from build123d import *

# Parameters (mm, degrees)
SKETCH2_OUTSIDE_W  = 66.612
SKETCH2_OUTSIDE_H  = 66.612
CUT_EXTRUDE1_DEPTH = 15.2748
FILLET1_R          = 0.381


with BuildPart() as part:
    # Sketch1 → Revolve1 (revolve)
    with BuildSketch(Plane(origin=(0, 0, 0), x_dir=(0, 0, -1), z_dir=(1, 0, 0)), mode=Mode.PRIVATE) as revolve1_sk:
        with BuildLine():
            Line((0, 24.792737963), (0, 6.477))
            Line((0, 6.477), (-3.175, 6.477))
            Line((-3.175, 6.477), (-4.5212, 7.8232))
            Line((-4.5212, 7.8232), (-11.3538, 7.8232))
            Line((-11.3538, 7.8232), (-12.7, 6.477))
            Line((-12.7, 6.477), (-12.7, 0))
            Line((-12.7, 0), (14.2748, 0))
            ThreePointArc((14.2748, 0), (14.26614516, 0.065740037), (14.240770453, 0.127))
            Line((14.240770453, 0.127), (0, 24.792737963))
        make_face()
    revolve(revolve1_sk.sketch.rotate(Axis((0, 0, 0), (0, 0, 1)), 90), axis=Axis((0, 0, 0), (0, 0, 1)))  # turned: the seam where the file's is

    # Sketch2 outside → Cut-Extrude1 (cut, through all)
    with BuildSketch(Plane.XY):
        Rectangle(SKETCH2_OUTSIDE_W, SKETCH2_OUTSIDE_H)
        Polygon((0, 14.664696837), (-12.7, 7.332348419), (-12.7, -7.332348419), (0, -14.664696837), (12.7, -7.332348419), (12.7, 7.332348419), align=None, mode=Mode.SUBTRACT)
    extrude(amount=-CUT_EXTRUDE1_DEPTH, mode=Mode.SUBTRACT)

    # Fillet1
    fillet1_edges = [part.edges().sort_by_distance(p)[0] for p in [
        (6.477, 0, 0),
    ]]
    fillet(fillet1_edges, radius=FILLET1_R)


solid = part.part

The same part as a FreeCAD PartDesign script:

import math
import FreeCAD as App
import Part
import Sketcher
from FreeCAD import Vector
Q = App.Units.Quantity


def edges_at(feature, points):
    """Names of the edges that pass closest to the given points."""
    edges = feature.Shape.Edges
    near = lambda p: min(range(len(edges)), key=lambda i: edges[i].distToShape(Part.Vertex(*p))[0])
    return sorted({f"Edge{near(p) + 1}" for p in points})


def add_polygon(sketch, points):
    """Adds a closed chain of lines whose ends are joined by coincident constraints."""
    first, n = sketch.GeometryCount, len(points)
    for a, b in zip(points, points[1:] + points[:1]):
        sketch.addGeometry(Part.LineSegment(App.Vector(*a, 0), App.Vector(*b, 0)), False)
    for i in range(n):
        sketch.addConstraint(Sketcher.Constraint("Coincident", first + i, 2, first + (i + 1) % n, 1))

doc = App.newDocument("Part")
params = doc.addObject("Spreadsheet::Sheet", "Params")
for row, (alias, value) in enumerate([
    ("sketch1_radius", "0.01 in"),
    ("sketch1_width", "0.255 in"),
    ("sketch1_height", "0.125 in"),
    ("sketch1_height2", "0.269 in"),
    ("sketch1_height3", "1.062 in"),
    ("revolution_angle", "360 deg"),
    ("fillet_radius", "0.015 in"),
], start=1):
    params.set(f"A{row}", alias)
    params.set(f"B{row}", "=" + value)
    params.setAlias(f"B{row}", alias)

body = doc.addObject("PartDesign::Body", "Body")

# Sketch on YZ plane
sketch1 = doc.addObject("Sketcher::SketchObject", "Sketch")
body.addObject(sketch1)
sketch1.AttachmentSupport = (doc.YZ_Plane, [""])
sketch1.MapMode = "FlatFace"
sketch1.addGeometry([
    Part.LineSegment(Vector(24.79, 0, 0), Vector(6.48, 0, 0)),  # 0
    Part.LineSegment(Vector(6.48, 0, 0), Vector(6.48, 3.17, 0)),  # 1
    Part.LineSegment(Vector(6.48, 3.17, 0), Vector(7.82, 4.52, 0)),  # 2
    Part.LineSegment(Vector(7.82, 4.52, 0), Vector(7.82, 11.35, 0)),  # 3
    Part.LineSegment(Vector(7.82, 11.35, 0), Vector(6.48, 12.7, 0)),  # 4
    Part.LineSegment(Vector(6.48, 12.7, 0), Vector(0, 12.7, 0)),  # 5
    Part.LineSegment(Vector(0, 12.7, 0), Vector(0, -14.27, 0)),  # 6
    Part.ArcOfCircle(Part.Circle(Vector(0, -14.02, 0), Vector(0, 0, 1), 0.25), math.radians(-90), math.radians(-60)),  # 7
    Part.LineSegment(Vector(0.13, -14.24, 0), Vector(24.79, 0, 0)),  # 8
], False)
sketch1.addConstraint([
    Sketcher.Constraint("Coincident", 0, 2, 1, 1),
    Sketcher.Constraint("Coincident", 1, 2, 2, 1),
    Sketcher.Constraint("Coincident", 2, 2, 3, 1),
    Sketcher.Constraint("Coincident", 3, 2, 4, 1),
    Sketcher.Constraint("Coincident", 4, 2, 5, 1),
    Sketcher.Constraint("Coincident", 5, 2, 6, 1),
    Sketcher.Constraint("Coincident", 6, 2, 7, 1),
    Sketcher.Constraint("Tangent", 7, 2, 8, 1),
    Sketcher.Constraint("Coincident", 8, 2, 0, 1),
    Sketcher.Constraint("Horizontal", 0),
    Sketcher.Constraint("Vertical", 1),
    Sketcher.Constraint("Vertical", 3),
    Sketcher.Constraint("Horizontal", 5),
    Sketcher.Constraint("Vertical", 6),
    Sketcher.Constraint("PointOnObject", 7, 3, -2),
    Sketcher.Constraint("PointOnObject", 0, 2, -1),
    Sketcher.Constraint("PointOnObject", 5, 2, -2),
    Sketcher.Constraint("Perpendicular", 2, 4),
    Sketcher.Constraint("Vertical", 1, 2, 4, 2),
    Sketcher.Constraint("Equal", 2, 4),
    Sketcher.Constraint("Radius", 7, Q("0.01 in")),
    Sketcher.Constraint("Angle", 8, Q("30 deg")),
    Sketcher.Constraint("DistanceY", -1, 1, 4, 2, Q("0.5 in")),
    Sketcher.Constraint("DistanceX", 5, 2, 5, 1, Q("0.255 in")),
    Sketcher.Constraint("DistanceY", 1, 1, 1, 2, Q("0.125 in")),
    Sketcher.Constraint("DistanceY", 3, 1, 3, 2, Q("0.269 in")),
    Sketcher.Constraint("DistanceY", 6, 2, 6, 1, Q("1.062 in")),
])
sketch1.setExpression("Constraints[20]", "Params.sketch1_radius")
sketch1.setExpression("Constraints[23]", "Params.sketch1_width")
sketch1.setExpression("Constraints[24]", "Params.sketch1_height")
sketch1.setExpression("Constraints[25]", "Params.sketch1_height2")
sketch1.setExpression("Constraints[26]", "Params.sketch1_height3")
revolution = doc.addObject("PartDesign::Revolution", "Revolution")
body.addObject(revolution)
revolution.Profile = sketch1
revolution.ReferenceAxis = (sketch1, ["V_Axis"])
revolution.setExpression("Angle", "Params.revolution_angle")

# Sketch on XY plane
sketch2 = doc.addObject("Sketcher::SketchObject", "Sketch001")
body.addObject(sketch2)
sketch2.AttachmentSupport = (doc.XY_Plane, [""])
sketch2.MapMode = "FlatFace"
add_polygon(sketch2, [(-33, 33), (-33, -33), (33, -33), (33, 33)])  # lines 0-3
add_polygon(sketch2, [(-13, 7), (0, 15), (13, 7), (13, -7), (0, -15), (-13, -7)])  # lines 4-9
sketch2.addConstraint([
    Sketcher.Constraint("Vertical", 0),
    Sketcher.Constraint("Horizontal", 1),
    Sketcher.Constraint("Vertical", 2),
    Sketcher.Constraint("Horizontal", 3),
    Sketcher.Constraint("Vertical", 6),
    Sketcher.Constraint("Vertical", 9),
    Sketcher.Constraint("Symmetric", 0, 2, 2, 2, -1, 1),
    Sketcher.Constraint("Symmetric", 4, 2, 7, 2, -1, 1),
    Sketcher.Constraint("Symmetric", 5, 2, 8, 2, -1, 1),
    Sketcher.Constraint("PointOnObject", 4, 2, -2),
    Sketcher.Constraint("Parallel", 4, 7),
    Sketcher.Constraint("Horizontal", 6, 2, 8, 2),
    Sketcher.Constraint("Equal", 3, 0),
    Sketcher.Constraint("Angle", 4, Q("30 deg")),
    Sketcher.Constraint("DistanceX", 8, 2, 6, 2, Q("1 in")),
    Sketcher.Constraint("DistanceX", 1, 1, 1, 2, 66.612),
    Sketcher.Constraint("DistanceY", 6, 2, 6, 1, 14.664697),
])
pocket1 = doc.addObject("PartDesign::Pocket", "Pocket")
body.addObject(pocket1)
pocket1.Profile = sketch2
pocket1.Type = "ThroughAll"
doc.recompute()

fillet = doc.addObject("PartDesign::Fillet", "Fillet")
body.addObject(fillet)
fillet.Base = (pocket1, edges_at(pocket1, [(6.477, 0, 0)]))
fillet.setExpression("Radius", "Params.fillet_radius")

doc.recompute()
